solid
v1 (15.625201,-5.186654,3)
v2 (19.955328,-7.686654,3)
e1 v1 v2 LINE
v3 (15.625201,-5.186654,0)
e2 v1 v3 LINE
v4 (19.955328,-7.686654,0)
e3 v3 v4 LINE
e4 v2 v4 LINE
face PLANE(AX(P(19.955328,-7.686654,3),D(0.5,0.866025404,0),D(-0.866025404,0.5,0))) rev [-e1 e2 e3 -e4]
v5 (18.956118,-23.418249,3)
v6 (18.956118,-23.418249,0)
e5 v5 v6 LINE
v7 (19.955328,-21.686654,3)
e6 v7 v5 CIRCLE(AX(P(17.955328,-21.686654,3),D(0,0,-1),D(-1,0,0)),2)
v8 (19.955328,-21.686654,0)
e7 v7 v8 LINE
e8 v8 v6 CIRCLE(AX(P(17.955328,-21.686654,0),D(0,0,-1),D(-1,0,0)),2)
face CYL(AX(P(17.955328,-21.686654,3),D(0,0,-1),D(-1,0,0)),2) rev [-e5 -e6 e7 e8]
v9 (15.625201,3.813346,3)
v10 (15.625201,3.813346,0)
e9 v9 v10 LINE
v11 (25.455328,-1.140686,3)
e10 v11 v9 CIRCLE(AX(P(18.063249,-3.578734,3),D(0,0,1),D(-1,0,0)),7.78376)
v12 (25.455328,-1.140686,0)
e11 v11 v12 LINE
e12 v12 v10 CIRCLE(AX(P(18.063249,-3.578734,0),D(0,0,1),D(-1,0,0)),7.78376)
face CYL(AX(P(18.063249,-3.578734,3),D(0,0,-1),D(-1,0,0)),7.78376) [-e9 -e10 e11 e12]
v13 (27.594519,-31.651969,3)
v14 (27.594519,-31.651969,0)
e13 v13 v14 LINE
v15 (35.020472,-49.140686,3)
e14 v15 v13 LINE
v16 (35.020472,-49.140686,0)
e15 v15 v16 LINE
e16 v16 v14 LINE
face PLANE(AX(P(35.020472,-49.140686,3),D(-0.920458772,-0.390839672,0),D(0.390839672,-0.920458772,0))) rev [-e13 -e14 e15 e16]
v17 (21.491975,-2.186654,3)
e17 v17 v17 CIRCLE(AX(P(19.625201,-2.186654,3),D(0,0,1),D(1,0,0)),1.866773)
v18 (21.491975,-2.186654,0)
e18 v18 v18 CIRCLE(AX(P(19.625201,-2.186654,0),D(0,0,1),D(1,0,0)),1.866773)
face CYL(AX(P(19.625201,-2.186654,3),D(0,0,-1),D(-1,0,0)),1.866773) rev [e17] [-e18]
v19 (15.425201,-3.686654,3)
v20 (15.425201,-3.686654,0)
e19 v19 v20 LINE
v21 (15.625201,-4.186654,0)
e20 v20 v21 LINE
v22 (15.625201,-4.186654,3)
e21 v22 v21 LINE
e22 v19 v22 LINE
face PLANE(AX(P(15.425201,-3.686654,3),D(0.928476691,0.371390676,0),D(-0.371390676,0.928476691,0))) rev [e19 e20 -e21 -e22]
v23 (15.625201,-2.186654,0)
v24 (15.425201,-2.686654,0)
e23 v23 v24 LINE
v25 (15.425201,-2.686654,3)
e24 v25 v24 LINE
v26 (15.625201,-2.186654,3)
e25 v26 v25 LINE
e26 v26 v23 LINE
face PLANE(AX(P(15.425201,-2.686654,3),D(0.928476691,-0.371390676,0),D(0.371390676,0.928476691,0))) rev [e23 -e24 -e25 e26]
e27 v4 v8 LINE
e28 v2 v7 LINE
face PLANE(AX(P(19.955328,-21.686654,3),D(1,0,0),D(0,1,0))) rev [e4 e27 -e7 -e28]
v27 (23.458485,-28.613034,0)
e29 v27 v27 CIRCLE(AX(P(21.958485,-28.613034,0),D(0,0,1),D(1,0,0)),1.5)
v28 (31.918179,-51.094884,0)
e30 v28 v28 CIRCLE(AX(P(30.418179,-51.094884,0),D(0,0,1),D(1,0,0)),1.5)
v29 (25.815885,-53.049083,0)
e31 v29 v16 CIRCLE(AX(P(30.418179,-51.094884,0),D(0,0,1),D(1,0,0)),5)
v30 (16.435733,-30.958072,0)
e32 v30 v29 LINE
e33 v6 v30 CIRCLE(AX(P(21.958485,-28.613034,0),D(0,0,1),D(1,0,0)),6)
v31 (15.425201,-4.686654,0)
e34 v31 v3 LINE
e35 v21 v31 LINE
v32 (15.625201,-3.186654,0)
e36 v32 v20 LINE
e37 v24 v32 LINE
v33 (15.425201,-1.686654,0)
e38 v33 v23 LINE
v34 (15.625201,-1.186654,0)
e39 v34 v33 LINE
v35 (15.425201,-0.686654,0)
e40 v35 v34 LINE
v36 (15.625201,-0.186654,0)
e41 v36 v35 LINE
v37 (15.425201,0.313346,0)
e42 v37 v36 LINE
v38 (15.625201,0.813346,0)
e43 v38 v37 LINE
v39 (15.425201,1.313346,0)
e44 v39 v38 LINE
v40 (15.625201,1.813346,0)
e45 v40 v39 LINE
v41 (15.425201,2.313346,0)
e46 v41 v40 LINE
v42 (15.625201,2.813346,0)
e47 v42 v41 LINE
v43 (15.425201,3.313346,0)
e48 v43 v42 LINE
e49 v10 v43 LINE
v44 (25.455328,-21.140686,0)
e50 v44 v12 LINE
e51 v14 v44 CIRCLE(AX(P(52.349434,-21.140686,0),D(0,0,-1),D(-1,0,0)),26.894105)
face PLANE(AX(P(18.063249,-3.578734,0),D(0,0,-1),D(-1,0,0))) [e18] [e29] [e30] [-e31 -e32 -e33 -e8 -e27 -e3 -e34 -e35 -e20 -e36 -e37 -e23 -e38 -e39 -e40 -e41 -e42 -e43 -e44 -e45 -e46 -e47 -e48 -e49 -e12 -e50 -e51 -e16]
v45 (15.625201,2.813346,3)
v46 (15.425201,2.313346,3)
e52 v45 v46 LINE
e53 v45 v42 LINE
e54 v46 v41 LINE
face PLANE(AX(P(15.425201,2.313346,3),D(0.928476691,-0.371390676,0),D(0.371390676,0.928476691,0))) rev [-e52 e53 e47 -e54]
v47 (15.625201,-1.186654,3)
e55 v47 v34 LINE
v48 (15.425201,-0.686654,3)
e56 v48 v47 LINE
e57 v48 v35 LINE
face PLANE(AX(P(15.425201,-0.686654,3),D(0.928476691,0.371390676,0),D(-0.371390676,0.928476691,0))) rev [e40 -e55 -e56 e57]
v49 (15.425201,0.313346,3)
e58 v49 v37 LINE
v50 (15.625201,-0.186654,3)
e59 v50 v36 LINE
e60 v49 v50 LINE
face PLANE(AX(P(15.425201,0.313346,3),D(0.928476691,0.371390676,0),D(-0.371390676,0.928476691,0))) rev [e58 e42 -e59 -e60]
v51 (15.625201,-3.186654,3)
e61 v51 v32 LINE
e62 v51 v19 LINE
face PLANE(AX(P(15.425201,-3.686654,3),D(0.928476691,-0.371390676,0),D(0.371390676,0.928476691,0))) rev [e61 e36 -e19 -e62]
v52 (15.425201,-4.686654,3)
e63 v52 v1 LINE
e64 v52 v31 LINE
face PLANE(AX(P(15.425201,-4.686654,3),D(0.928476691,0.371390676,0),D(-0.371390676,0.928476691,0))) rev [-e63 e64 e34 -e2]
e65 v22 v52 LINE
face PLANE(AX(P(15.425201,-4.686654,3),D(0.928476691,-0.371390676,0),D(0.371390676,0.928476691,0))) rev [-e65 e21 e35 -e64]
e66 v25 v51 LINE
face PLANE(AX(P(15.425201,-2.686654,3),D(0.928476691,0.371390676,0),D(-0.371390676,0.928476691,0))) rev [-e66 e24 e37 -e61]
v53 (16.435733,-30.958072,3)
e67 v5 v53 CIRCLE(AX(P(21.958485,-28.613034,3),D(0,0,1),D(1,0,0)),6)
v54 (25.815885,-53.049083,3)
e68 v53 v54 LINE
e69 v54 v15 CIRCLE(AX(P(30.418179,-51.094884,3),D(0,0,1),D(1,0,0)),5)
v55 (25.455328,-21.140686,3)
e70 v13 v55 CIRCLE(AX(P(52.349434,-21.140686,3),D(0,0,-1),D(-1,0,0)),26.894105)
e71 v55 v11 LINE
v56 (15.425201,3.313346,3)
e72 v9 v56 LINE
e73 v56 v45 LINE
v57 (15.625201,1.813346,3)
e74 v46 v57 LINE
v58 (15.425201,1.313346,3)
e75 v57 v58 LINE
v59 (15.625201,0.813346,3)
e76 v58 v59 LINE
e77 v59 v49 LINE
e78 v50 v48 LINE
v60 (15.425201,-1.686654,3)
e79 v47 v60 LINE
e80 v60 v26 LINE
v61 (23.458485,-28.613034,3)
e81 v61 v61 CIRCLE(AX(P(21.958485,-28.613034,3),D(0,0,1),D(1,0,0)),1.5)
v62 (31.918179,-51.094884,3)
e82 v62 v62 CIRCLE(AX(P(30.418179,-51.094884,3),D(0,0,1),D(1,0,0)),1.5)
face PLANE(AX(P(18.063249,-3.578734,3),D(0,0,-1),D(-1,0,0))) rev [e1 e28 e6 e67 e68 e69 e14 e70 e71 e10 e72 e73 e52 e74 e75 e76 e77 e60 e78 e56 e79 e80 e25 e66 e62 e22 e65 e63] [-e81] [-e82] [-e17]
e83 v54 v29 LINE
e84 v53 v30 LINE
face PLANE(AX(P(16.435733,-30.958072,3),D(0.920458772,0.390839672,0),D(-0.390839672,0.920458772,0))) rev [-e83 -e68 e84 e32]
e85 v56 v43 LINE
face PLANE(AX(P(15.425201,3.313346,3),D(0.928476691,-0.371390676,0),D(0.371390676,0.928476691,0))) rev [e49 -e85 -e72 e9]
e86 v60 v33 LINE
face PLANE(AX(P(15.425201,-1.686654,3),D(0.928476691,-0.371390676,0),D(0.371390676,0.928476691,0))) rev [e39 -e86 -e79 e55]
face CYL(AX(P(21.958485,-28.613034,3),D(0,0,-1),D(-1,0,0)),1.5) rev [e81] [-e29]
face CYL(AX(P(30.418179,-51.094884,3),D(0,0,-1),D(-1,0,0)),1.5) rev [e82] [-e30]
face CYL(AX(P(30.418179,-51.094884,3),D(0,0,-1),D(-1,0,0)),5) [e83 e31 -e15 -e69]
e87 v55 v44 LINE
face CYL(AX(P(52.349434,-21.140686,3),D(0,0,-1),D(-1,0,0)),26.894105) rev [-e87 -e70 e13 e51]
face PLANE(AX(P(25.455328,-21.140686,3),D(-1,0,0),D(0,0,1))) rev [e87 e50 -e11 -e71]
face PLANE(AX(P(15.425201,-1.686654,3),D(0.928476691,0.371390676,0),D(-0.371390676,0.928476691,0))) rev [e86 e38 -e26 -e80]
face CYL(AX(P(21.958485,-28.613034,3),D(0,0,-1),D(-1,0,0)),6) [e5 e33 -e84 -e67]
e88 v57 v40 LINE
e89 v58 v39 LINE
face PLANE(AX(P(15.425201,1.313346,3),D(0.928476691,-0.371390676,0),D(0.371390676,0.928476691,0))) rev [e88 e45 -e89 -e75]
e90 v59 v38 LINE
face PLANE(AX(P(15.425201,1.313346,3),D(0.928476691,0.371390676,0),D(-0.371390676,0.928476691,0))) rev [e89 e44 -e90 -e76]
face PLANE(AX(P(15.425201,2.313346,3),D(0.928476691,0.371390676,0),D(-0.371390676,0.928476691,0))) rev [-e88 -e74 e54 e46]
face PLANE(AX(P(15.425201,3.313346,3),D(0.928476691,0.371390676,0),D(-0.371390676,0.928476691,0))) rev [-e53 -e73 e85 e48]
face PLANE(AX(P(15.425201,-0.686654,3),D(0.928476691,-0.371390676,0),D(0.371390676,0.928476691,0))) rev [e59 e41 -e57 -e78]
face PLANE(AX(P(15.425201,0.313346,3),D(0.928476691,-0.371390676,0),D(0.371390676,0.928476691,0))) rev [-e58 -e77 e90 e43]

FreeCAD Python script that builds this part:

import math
import FreeCAD as App
import Part
import Sketcher

V = App.Vector
Q = App.Units.Quantity

doc = App.newDocument("Part")
body = doc.addObject("PartDesign::Body", "Body")

# Sketch on XY plane
sketch1 = doc.addObject("Sketcher::SketchObject", "Sketch")
body.addObject(sketch1)
sketch1.AttachmentSupport = (doc.XY_Plane, [""])
sketch1.MapMode = "FlatFace"
sketch1.addGeometry(Part.LineSegment(V(20, -7.7, 0), V(20, -21.7, 0)), False)
sketch1.addGeometry(Part.ArcOfCircle(Part.Circle(V(18, -21.7, 0), V(0, 0, 1), 2), math.radians(-60), math.radians(0)), False)
sketch1.addGeometry(Part.ArcOfCircle(Part.Circle(V(22, -28.6, 0), V(0, 0, 1), 6), math.radians(120), math.radians(203)), False)
sketch1.addGeometry(Part.LineSegment(V(16.4, -31, 0), V(25.8, -53, 0)), False)
sketch1.addGeometry(Part.ArcOfCircle(Part.Circle(V(30.4, -51.1, 0), V(0, 0, 1), 5), math.radians(-157), math.radians(23)), False)
sketch1.addGeometry(Part.LineSegment(V(35, -49.1, 0), V(27.6, -31.7, 0)), False)
sketch1.addGeometry(Part.ArcOfCircle(Part.Circle(V(52.3, -21.1, 0), V(0, 0, 1), 26.9), math.radians(180), math.radians(203)), False)
sketch1.addGeometry(Part.LineSegment(V(25.5, -21.1, 0), V(25.5, -1.1, 0)), False)
sketch1.addGeometry(Part.ArcOfCircle(Part.Circle(V(18.1, -3.6, 0), V(0, 0, 1), 7.8), math.radians(18), math.radians(108)), False)
sketch1.addGeometry(Part.LineSegment(V(15.6, 3.8, 0), V(15.4, 3.3, 0)), False)
sketch1.addGeometry(Part.LineSegment(V(15.4, 3.3, 0), V(15.6, 2.8, 0)), False)
sketch1.addGeometry(Part.LineSegment(V(15.6, 2.8, 0), V(15.4, 2.3, 0)), False)
sketch1.addGeometry(Part.LineSegment(V(15.4, 2.3, 0), V(15.6, 1.8, 0)), False)
sketch1.addGeometry(Part.LineSegment(V(15.6, 1.8, 0), V(15.4, 1.3, 0)), False)
sketch1.addGeometry(Part.LineSegment(V(15.4, 1.3, 0), V(15.6, 0.8, 0)), False)
sketch1.addGeometry(Part.LineSegment(V(15.6, 0.8, 0), V(15.4, 0.3, 0)), False)
sketch1.addGeometry(Part.LineSegment(V(15.4, 0.3, 0), V(15.6, -0.2, 0)), False)
sketch1.addGeometry(Part.LineSegment(V(15.6, -0.2, 0), V(15.4, -0.7, 0)), False)
sketch1.addGeometry(Part.LineSegment(V(15.4, -0.7, 0), V(15.6, -1.2, 0)), False)
sketch1.addGeometry(Part.LineSegment(V(15.6, -1.2, 0), V(15.4, -1.7, 0)), False)
sketch1.addGeometry(Part.LineSegment(V(15.4, -1.7, 0), V(15.6, -2.2, 0)), False)
sketch1.addGeometry(Part.LineSegment(V(15.6, -2.2, 0), V(15.4, -2.7, 0)), False)
sketch1.addGeometry(Part.LineSegment(V(15.4, -2.7, 0), V(15.6, -3.2, 0)), False)
sketch1.addGeometry(Part.LineSegment(V(15.6, -3.2, 0), V(15.4, -3.7, 0)), False)
sketch1.addGeometry(Part.LineSegment(V(15.4, -3.7, 0), V(15.6, -4.2, 0)), False)
sketch1.addGeometry(Part.LineSegment(V(15.6, -4.2, 0), V(15.4, -4.7, 0)), False)
sketch1.addGeometry(Part.LineSegment(V(15.4, -4.7, 0), V(15.6, -5.2, 0)), False)
sketch1.addGeometry(Part.LineSegment(V(15.6, -5.2, 0), V(20, -7.7, 0)), False)
sketch1.addGeometry(Part.Circle(V(30.4, -51.1, 0), V(0, 0, 1), 1.5), False)
sketch1.addGeometry(Part.Circle(V(22, -28.6, 0), V(0, 0, 1), 1.5), False)
sketch1.addGeometry(Part.Circle(V(19.6, -2.2, 0), V(0, 0, 1), 1.9), False)
sketch1.addConstraint(Sketcher.Constraint("Tangent", 0, 2, 1, 2))
sketch1.addConstraint(Sketcher.Constraint("Tangent", 1, 1, 2, 1))
sketch1.addConstraint(Sketcher.Constraint("Tangent", 2, 2, 3, 1))
sketch1.addConstraint(Sketcher.Constraint("Tangent", 3, 2, 4, 1))
sketch1.addConstraint(Sketcher.Constraint("Tangent", 4, 2, 5, 1))
sketch1.addConstraint(Sketcher.Constraint("Tangent", 5, 2, 6, 2))
sketch1.addConstraint(Sketcher.Constraint("Tangent", 6, 1, 7, 1))
sketch1.addConstraint(Sketcher.Constraint("Coincident", 7, 2, 8, 1))
sketch1.addConstraint(Sketcher.Constraint("Coincident", 8, 2, 9, 1))
sketch1.addConstraint(Sketcher.Constraint("Coincident", 9, 2, 10, 1))
sketch1.addConstraint(Sketcher.Constraint("Coincident", 10, 2, 11, 1))
sketch1.addConstraint(Sketcher.Constraint("Coincident", 11, 2, 12, 1))
sketch1.addConstraint(Sketcher.Constraint("Coincident", 12, 2, 13, 1))
sketch1.addConstraint(Sketcher.Constraint("Coincident", 13, 2, 14, 1))
sketch1.addConstraint(Sketcher.Constraint("Coincident", 14, 2, 15, 1))
sketch1.addConstraint(Sketcher.Constraint("Coincident", 15, 2, 16, 1))
sketch1.addConstraint(Sketcher.Constraint("Coincident", 16, 2, 17, 1))
sketch1.addConstraint(Sketcher.Constraint("Coincident", 17, 2, 18, 1))
sketch1.addConstraint(Sketcher.Constraint("Coincident", 18, 2, 19, 1))
sketch1.addConstraint(Sketcher.Constraint("Coincident", 19, 2, 20, 1))
sketch1.addConstraint(Sketcher.Constraint("Coincident", 20, 2, 21, 1))
sketch1.addConstraint(Sketcher.Constraint("Coincident", 21, 2, 22, 1))
sketch1.addConstraint(Sketcher.Constraint("Coincident", 22, 2, 23, 1))
sketch1.addConstraint(Sketcher.Constraint("Coincident", 23, 2, 24, 1))
sketch1.addConstraint(Sketcher.Constraint("Coincident", 24, 2, 25, 1))
sketch1.addConstraint(Sketcher.Constraint("Coincident", 25, 2, 26, 1))
sketch1.addConstraint(Sketcher.Constraint("Coincident", 26, 2, 27, 1))
sketch1.addConstraint(Sketcher.Constraint("Coincident", 27, 2, 0, 1))
sketch1.addConstraint(Sketcher.Constraint("Vertical", 0))
sketch1.addConstraint(Sketcher.Constraint("Vertical", 7))
sketch1.addConstraint(Sketcher.Constraint("Coincident", 28, 3, 4, 3))
sketch1.addConstraint(Sketcher.Constraint("Coincident", 29, 3, 2, 3))
sketch1.addConstraint(Sketcher.Constraint("Equal", 28, 29))
sketch1.addConstraint(Sketcher.Constraint("Parallel", 3, 5))
sketch1.addConstraint(Sketcher.Constraint("Parallel", 9, 11))
sketch1.addConstraint(Sketcher.Constraint("Parallel", 10, 12))
sketch1.addConstraint(Sketcher.Constraint("Parallel", 11, 13))
sketch1.addConstraint(Sketcher.Constraint("Parallel", 12, 14))
sketch1.addConstraint(Sketcher.Constraint("Parallel", 13, 15))
sketch1.addConstraint(Sketcher.Constraint("Parallel", 14, 16))
sketch1.addConstraint(Sketcher.Constraint("Parallel", 15, 17))
sketch1.addConstraint(Sketcher.Constraint("Parallel", 16, 18))
sketch1.addConstraint(Sketcher.Constraint("Parallel", 17, 19))
sketch1.addConstraint(Sketcher.Constraint("Parallel", 18, 20))
sketch1.addConstraint(Sketcher.Constraint("Parallel", 19, 21))
sketch1.addConstraint(Sketcher.Constraint("Parallel", 20, 22))
sketch1.addConstraint(Sketcher.Constraint("Parallel", 21, 23))
sketch1.addConstraint(Sketcher.Constraint("Parallel", 22, 24))
sketch1.addConstraint(Sketcher.Constraint("Parallel", 23, 25))
sketch1.addConstraint(Sketcher.Constraint("Parallel", 24, 26))
sketch1.addConstraint(Sketcher.Constraint("Horizontal", 30, 3, 20, 2))
sketch1.addConstraint(Sketcher.Constraint("Vertical", 8, 2, 10, 2))
sketch1.addConstraint(Sketcher.Constraint("Vertical", 9, 2, 11, 2))
sketch1.addConstraint(Sketcher.Constraint("Vertical", 10, 2, 12, 2))
sketch1.addConstraint(Sketcher.Constraint("Vertical", 11, 2, 13, 2))
sketch1.addConstraint(Sketcher.Constraint("Vertical", 12, 2, 14, 2))
sketch1.addConstraint(Sketcher.Constraint("Vertical", 13, 2, 15, 2))
sketch1.addConstraint(Sketcher.Constraint("Vertical", 14, 2, 16, 2))
sketch1.addConstraint(Sketcher.Constraint("Vertical", 15, 2, 17, 2))
sketch1.addConstraint(Sketcher.Constraint("Vertical", 16, 2, 18, 2))
sketch1.addConstraint(Sketcher.Constraint("Vertical", 17, 2, 19, 2))
sketch1.addConstraint(Sketcher.Constraint("Vertical", 18, 2, 20, 2))
sketch1.addConstraint(Sketcher.Constraint("Vertical", 19, 2, 21, 2))
sketch1.addConstraint(Sketcher.Constraint("Vertical", 20, 2, 22, 2))
sketch1.addConstraint(Sketcher.Constraint("Vertical", 21, 2, 23, 2))
sketch1.addConstraint(Sketcher.Constraint("Vertical", 22, 2, 24, 2))
sketch1.addConstraint(Sketcher.Constraint("Vertical", 23, 2, 25, 2))
sketch1.addConstraint(Sketcher.Constraint("Vertical", 24, 2, 26, 2))
sketch1.addConstraint(Sketcher.Constraint("Equal", 9, 10))
sketch1.addConstraint(Sketcher.Constraint("Diameter", 28, 3.0))
sketch1.addConstraint(Sketcher.Constraint("Radius", 1, 2.0))
sketch1.addConstraint(Sketcher.Constraint("Radius", 2, 6.0))
sketch1.addConstraint(Sketcher.Constraint("Radius", 4, 5.0))
sketch1.addConstraint(Sketcher.Constraint("DistanceY", 0, 2, 0, 1, 14.0))
sketch1.addConstraint(Sketcher.Constraint("DistanceY", 7, 1, 7, 2, 20.0))
sketch1.addConstraint(Sketcher.Constraint("Angle", 27, Q("-30 deg")))
sketch1.addConstraint(Sketcher.Constraint("Distance", 3, 24.0))
sketch1.addConstraint(Sketcher.Constraint("Distance", 5, 19.0))
sketch1.addConstraint(Sketcher.Constraint("Distance", 27, 5.0))
sketch1.addConstraint(Sketcher.Constraint("DistanceX", 8, 2, 30, 3, 4.0))
sketch1.addConstraint(Sketcher.Constraint("DistanceY", 30, 3, 8, 2, 6.0))
sketch1.addConstraint(Sketcher.Constraint("DistanceX", 0, 2, 6, 1, 5.5))
sketch1.addConstraint(Sketcher.Constraint("DistanceX", 9, 2, 8, 2, 0.2))
sketch1.addConstraint(Sketcher.Constraint("Radius", 8, 7.78376))
sketch1.addConstraint(Sketcher.Constraint("Diameter", 30, 3.733546))
sketch1.addConstraint(Sketcher.Constraint("Radius", 6, 26.894105))
sketch1.addConstraint(Sketcher.Constraint("DistanceX", -1, 1, 30, 3, 19.625201))
sketch1.addConstraint(Sketcher.Constraint("DistanceY", 4, 3, 6, 3, 29.954198))
sketch1.addConstraint(Sketcher.Constraint("DistanceY", 1, 1, -1, 1, 23.418249))
pad1 = doc.addObject("PartDesign::Pad", "Pad")
body.addObject(pad1)
pad1.Profile = sketch1
pad1.Length = 3

doc.recompute()
